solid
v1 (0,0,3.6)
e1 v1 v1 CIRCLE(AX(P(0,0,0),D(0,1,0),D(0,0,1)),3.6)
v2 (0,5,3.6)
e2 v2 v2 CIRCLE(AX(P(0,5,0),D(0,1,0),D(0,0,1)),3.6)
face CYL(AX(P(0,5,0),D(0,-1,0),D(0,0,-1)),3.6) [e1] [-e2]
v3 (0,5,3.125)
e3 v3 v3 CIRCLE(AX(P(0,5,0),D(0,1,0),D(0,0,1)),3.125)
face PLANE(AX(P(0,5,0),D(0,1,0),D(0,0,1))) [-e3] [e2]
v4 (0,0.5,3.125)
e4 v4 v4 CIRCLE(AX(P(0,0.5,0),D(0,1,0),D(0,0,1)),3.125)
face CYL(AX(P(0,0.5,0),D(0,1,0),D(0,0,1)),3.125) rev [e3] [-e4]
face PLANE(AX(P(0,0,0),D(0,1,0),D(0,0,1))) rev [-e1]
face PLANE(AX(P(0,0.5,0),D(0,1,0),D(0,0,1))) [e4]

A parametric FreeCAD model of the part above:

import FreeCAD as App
import Part
import Sketcher

V = App.Vector

doc = App.newDocument("Part")
body = doc.addObject("PartDesign::Body", "Body")

# Sketch on XZ plane
sketch1 = body.newObject("Sketcher::SketchObject", "Sketch")
sketch1.AttachmentSupport = (doc.getObject("XZ_Plane"), [""])
sketch1.MapMode = "FlatFace"
sketch1.addGeometry(Part.Circle(V(0, 0, 0), V(0, 0, 1), 3.6), False)
sketch1.addConstraint([
    Sketcher.Constraint("Coincident", 0, 3, -1, 1),
    Sketcher.Constraint("Diameter", 0, 7.2),
])
pad1 = body.newObject("PartDesign::Pad", "Pad")
pad1.Profile = sketch1
pad1.Length = 5
pad1.Reversed = True

# Sketch on XZ plane
sketch2 = body.newObject("Sketcher::SketchObject", "Sketch001")
sketch2.AttachmentSupport = (doc.getObject("XZ_Plane"), [""])
sketch2.MapMode = "FlatFace"
sketch2.AttachmentOffset = App.Placement(V(0, 0, -5), App.Rotation())
sketch2.addGeometry(Part.Circle(V(0, 0, 0), V(0, 0, 1), 3.1), False)
sketch2.addConstraint([
    Sketcher.Constraint("Coincident", 0, 3, -1, 1),
    Sketcher.Constraint("Diameter", 0, 6.25),
])
pocket1 = body.newObject("PartDesign::Pocket", "Pocket")
pocket1.Profile = sketch2
pocket1.Length = 4.5
pocket1.Reversed = True

doc.recompute()
